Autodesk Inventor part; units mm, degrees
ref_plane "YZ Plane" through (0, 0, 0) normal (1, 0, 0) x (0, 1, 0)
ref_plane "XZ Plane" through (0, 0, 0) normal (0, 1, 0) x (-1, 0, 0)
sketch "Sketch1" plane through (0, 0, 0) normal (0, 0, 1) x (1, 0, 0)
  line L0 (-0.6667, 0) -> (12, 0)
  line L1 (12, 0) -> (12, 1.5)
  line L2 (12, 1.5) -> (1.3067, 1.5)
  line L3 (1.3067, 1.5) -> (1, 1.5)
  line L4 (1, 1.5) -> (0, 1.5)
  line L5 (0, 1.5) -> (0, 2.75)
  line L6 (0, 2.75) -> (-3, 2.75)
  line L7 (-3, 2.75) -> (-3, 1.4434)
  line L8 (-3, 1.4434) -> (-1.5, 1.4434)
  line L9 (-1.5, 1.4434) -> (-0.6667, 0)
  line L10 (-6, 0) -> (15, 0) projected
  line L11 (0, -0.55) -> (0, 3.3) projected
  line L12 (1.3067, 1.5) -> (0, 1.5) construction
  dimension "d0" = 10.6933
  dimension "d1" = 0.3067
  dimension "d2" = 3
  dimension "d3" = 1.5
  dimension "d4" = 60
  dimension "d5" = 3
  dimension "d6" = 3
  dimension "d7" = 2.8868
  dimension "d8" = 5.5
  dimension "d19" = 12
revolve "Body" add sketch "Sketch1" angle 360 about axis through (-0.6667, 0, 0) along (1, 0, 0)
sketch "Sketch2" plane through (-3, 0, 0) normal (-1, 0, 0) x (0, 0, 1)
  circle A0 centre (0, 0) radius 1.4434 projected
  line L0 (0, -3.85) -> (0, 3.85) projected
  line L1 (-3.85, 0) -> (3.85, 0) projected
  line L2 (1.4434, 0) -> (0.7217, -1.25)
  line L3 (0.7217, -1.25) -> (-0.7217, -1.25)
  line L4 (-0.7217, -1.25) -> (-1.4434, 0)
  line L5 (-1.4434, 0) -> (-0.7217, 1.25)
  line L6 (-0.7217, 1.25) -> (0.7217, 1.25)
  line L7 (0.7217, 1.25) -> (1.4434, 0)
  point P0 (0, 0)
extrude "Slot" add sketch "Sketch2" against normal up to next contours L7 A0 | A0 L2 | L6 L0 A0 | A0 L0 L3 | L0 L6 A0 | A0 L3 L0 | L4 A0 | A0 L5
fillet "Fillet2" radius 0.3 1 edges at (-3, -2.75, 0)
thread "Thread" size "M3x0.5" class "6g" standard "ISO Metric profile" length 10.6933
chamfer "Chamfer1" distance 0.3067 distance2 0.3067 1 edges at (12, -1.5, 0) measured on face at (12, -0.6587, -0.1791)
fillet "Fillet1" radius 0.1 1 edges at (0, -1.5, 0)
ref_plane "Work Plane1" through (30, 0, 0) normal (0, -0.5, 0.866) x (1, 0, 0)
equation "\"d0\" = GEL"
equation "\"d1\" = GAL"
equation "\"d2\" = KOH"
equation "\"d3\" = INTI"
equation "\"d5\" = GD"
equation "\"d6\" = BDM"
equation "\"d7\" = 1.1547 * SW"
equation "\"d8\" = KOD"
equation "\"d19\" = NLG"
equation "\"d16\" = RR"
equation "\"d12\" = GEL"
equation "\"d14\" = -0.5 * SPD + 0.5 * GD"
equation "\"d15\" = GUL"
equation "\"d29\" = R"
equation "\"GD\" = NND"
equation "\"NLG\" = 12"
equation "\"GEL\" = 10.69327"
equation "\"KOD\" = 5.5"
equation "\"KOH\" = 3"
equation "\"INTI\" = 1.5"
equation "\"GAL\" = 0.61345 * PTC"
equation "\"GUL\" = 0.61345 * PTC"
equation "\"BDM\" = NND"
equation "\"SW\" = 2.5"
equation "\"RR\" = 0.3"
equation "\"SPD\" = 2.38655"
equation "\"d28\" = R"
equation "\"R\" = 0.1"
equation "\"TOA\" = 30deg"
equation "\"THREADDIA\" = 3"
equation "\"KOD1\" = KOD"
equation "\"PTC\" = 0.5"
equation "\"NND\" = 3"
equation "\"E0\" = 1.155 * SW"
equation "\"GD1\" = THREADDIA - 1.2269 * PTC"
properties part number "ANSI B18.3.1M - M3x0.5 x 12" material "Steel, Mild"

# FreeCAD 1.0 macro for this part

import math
import FreeCAD as App
import Part
import Sketcher
from FreeCAD import Vector
Q = App.Units.Quantity


def edges_at(feature, points):
    """Names of the edges that pass closest to the given points."""
    edges = feature.Shape.Edges
    near = lambda p: min(range(len(edges)), key=lambda i: edges[i].distToShape(Part.Vertex(*p))[0])
    return sorted({f"Edge{near(p) + 1}" for p in points})

doc = App.newDocument("Part")
body = doc.addObject("PartDesign::Body", "Body")

sketch1 = body.newObject("Sketcher::SketchObject", "Sketch")
sketch1.AttachmentSupport = (doc.getObject("XY_Plane"), [""])
sketch1.MapMode = "FlatFace"
sketch1.addGeometry(Part.LineSegment(Vector(-1.5, 1.4, 0), Vector(-0.7, 0, 0)), False)
sketch1.addGeometry(Part.LineSegment(Vector(-0.7, 0, 0), Vector(12, 0, 0)), False)
sketch1.addGeometry(Part.LineSegment(Vector(12, 0, 0), Vector(12, 1.5, 0)), False)
sketch1.addGeometry(Part.LineSegment(Vector(12, 1.5, 0), Vector(0, 1.5, 0)), False)
sketch1.addGeometry(Part.LineSegment(Vector(0, 1.5, 0), Vector(0, 2.8, 0)), False)
sketch1.addGeometry(Part.LineSegment(Vector(0, 2.8, 0), Vector(-3, 2.8, 0)), False)
sketch1.addGeometry(Part.LineSegment(Vector(-3, 2.8, 0), Vector(-3, 1.4, 0)), False)
sketch1.addGeometry(Part.LineSegment(Vector(-3, 1.4, 0), Vector(-1.5, 1.4, 0)), False)
sketch1.addConstraint(Sketcher.Constraint("Coincident", 0, 2, 1, 1))
sketch1.addConstraint(Sketcher.Constraint("Coincident", 1, 2, 2, 1))
sketch1.addConstraint(Sketcher.Constraint("Coincident", 2, 2, 3, 1))
sketch1.addConstraint(Sketcher.Constraint("Coincident", 3, 2, 4, 1))
sketch1.addConstraint(Sketcher.Constraint("Coincident", 4, 2, 5, 1))
sketch1.addConstraint(Sketcher.Constraint("Coincident", 5, 2, 6, 1))
sketch1.addConstraint(Sketcher.Constraint("Coincident", 6, 2, 7, 1))
sketch1.addConstraint(Sketcher.Constraint("Coincident", 7, 2, 0, 1))
sketch1.addConstraint(Sketcher.Constraint("Horizontal", 1))
sketch1.addConstraint(Sketcher.Constraint("Vertical", 2))
sketch1.addConstraint(Sketcher.Constraint("Horizontal", 3))
sketch1.addConstraint(Sketcher.Constraint("Vertical", 4))
sketch1.addConstraint(Sketcher.Constraint("Horizontal", 5))
sketch1.addConstraint(Sketcher.Constraint("Vertical", 6))
sketch1.addConstraint(Sketcher.Constraint("Horizontal", 7))
sketch1.addConstraint(Sketcher.Constraint("PointOnObject", 0, 2, -1))
sketch1.addConstraint(Sketcher.Constraint("PointOnObject", 3, 2, -2))
sketch1.addConstraint(Sketcher.Constraint("Equal", 7, 2))
sketch1.addConstraint(Sketcher.Constraint("DistanceX", 3, 2, 3, 1, Q("12 mm")))
sketch1.addConstraint(Sketcher.Constraint("DistanceX", 5, 2, 5, 1, Q("3 mm")))
sketch1.addConstraint(Sketcher.Constraint("DistanceX", 7, 1, 7, 2, Q("1.5 mm")))
sketch1.addConstraint(Sketcher.Constraint("DistanceY", 4, 1, 4, 2, Q("1.25 mm")))
sketch1.addConstraint(Sketcher.Constraint("DistanceX", 1, 1, 1, 2, Q("12.6667 mm")))
sketch1.addConstraint(Sketcher.Constraint("DistanceY", 6, 2, 6, 1, Q("1.3066 mm")))
revolution = body.newObject("PartDesign::Revolution", "Revolution")
revolution.Profile = sketch1
revolution.ReferenceAxis = (sketch1, ["H_Axis"])
revolution.Angle = 360

sketch2 = body.newObject("Sketcher::SketchObject", "Sketch001")
sketch2.AttachmentSupport = (doc.getObject("YZ_Plane"), [""])
sketch2.MapMode = "FlatFace"
sketch2.AttachmentOffset = App.Placement(Vector(0, 0, -3), App.Rotation())
sketch2.addGeometry(Part.LineSegment(Vector(1.2, 0.7, 0), Vector(0, 1.4, 0)), False)
sketch2.addGeometry(Part.ArcOfCircle(Part.Circle(Vector(0, 0, 0), Vector(0, 0, 1), 1.4), math.radians(30), math.radians(90)), False)
sketch2.addGeometry(Part.ArcOfCircle(Part.Circle(Vector(0, 0, 0), Vector(0, 0, 1), 1.4), math.radians(90), math.radians(150)), False)
sketch2.addGeometry(Part.LineSegment(Vector(0, 1.4, 0), Vector(-1.2, 0.7, 0)), False)
sketch2.addGeometry(Part.ArcOfCircle(Part.Circle(Vector(0, 0, 0), Vector(0, 0, 1), 1.4), math.radians(-30), math.radians(30)), False)
sketch2.addGeometry(Part.LineSegment(Vector(1.2, 0.7, 0), Vector(1.2, -0.7, 0)), False)
sketch2.addGeometry(Part.LineSegment(Vector(-1.2, 0.7, 0), Vector(-1.2, -0.7, 0)), False)
sketch2.addGeometry(Part.ArcOfCircle(Part.Circle(Vector(0, 0, 0), Vector(0, 0, 1), 1.4), math.radians(150), math.radians(210)), False)
sketch2.addGeometry(Part.LineSegment(Vector(-1.2, -0.7, 0), Vector(0, -1.4, 0)), False)
sketch2.addGeometry(Part.ArcOfCircle(Part.Circle(Vector(0, 0, 0), Vector(0, 0, 1), 1.4), math.radians(-150), math.radians(-90)), False)
sketch2.addGeometry(Part.ArcOfCircle(Part.Circle(Vector(0, 0, 0), Vector(0, 0, 1), 1.4), math.radians(-90), math.radians(-30)), False)
sketch2.addGeometry(Part.LineSegment(Vector(0, -1.4, 0), Vector(1.2, -0.7, 0)), False)
sketch2.addConstraint(Sketcher.Constraint("Coincident", 0, 1, 1, 1))
sketch2.addConstraint(Sketcher.Constraint("Coincident", 1, 2, 0, 2))
sketch2.addConstraint(Sketcher.Constraint("Coincident", 2, 1, 3, 1))
sketch2.addConstraint(Sketcher.Constraint("Coincident", 3, 2, 2, 2))
sketch2.addConstraint(Sketcher.Constraint("Coincident", 4, 1, 5, 2))
sketch2.addConstraint(Sketcher.Constraint("Coincident", 5, 1, 4, 2))
sketch2.addConstraint(Sketcher.Constraint("Coincident", 6, 1, 7, 1))
sketch2.addConstraint(Sketcher.Constraint("Coincident", 7, 2, 6, 2))
sketch2.addConstraint(Sketcher.Constraint("Coincident", 8, 1, 9, 1))
sketch2.addConstraint(Sketcher.Constraint("Coincident", 9, 2, 8, 2))
sketch2.addConstraint(Sketcher.Constraint("Coincident", 10, 1, 11, 1))
sketch2.addConstraint(Sketcher.Constraint("Coincident", 11, 2, 10, 2))
sketch2.addConstraint(Sketcher.Constraint("Vertical", 5))
sketch2.addConstraint(Sketcher.Constraint("Vertical", 6))
sketch2.addConstraint(Sketcher.Constraint("Coincident", 1, 3, -1, 1))
sketch2.addConstraint(Sketcher.Constraint("Coincident", 2, 3, -1, 1))
sketch2.addConstraint(Sketcher.Constraint("Coincident", 4, 3, -1, 1))
sketch2.addConstraint(Sketcher.Constraint("Coincident", 7, 3, -1, 1))
sketch2.addConstraint(Sketcher.Constraint("Coincident", 9, 3, -1, 1))
sketch2.addConstraint(Sketcher.Constraint("Coincident", 10, 3, -1, 1))
sketch2.addConstraint(Sketcher.Constraint("Coincident", 2, 1, 1, 2))
sketch2.addConstraint(Sketcher.Constraint("Coincident", 5, 1, 0, 1))
sketch2.addConstraint(Sketcher.Constraint("Coincident", 6, 1, 3, 2))
sketch2.addConstraint(Sketcher.Constraint("Coincident", 8, 1, 7, 2))
sketch2.addConstraint(Sketcher.Constraint("Coincident", 10, 1, 9, 2))
sketch2.addConstraint(Sketcher.Constraint("PointOnObject", 1, 2, -2))
sketch2.addConstraint(Sketcher.Constraint("PointOnObject", 9, 2, -2))
sketch2.addConstraint(Sketcher.Constraint("Parallel", 0, 8))
sketch2.addConstraint(Sketcher.Constraint("Parallel", 3, 11))
sketch2.addConstraint(Sketcher.Constraint("Angle", 0, Q("149.9996 deg")))
sketch2.addConstraint(Sketcher.Constraint("Radius", 1, Q("1.4434 mm")))
pad1 = body.newObject("PartDesign::Pad", "Pad")
pad1.Profile = sketch2
pad1.Type = "UpToFirst"
doc.recompute()

fillet = body.newObject("PartDesign::Fillet", "Fillet")
fillet.Base = (pad1, edges_at(pad1, [(-3, -2.75, 0)]))
fillet.Radius = 0.3
doc.recompute()

chamfer = body.newObject("PartDesign::Chamfer", "Chamfer")
chamfer.Base = (fillet, edges_at(fillet, [(12, -1.5, 0)]))
chamfer.ChamferType = "Two distances"
chamfer.Size = 0.3067
chamfer.Size2 = 0.3067
doc.recompute()

fillet2 = body.newObject("PartDesign::Fillet", "Fillet001")
fillet2.Base = (chamfer, edges_at(chamfer, [(0, -1.5, 0)]))
fillet2.Radius = 0.1

doc.recompute()
